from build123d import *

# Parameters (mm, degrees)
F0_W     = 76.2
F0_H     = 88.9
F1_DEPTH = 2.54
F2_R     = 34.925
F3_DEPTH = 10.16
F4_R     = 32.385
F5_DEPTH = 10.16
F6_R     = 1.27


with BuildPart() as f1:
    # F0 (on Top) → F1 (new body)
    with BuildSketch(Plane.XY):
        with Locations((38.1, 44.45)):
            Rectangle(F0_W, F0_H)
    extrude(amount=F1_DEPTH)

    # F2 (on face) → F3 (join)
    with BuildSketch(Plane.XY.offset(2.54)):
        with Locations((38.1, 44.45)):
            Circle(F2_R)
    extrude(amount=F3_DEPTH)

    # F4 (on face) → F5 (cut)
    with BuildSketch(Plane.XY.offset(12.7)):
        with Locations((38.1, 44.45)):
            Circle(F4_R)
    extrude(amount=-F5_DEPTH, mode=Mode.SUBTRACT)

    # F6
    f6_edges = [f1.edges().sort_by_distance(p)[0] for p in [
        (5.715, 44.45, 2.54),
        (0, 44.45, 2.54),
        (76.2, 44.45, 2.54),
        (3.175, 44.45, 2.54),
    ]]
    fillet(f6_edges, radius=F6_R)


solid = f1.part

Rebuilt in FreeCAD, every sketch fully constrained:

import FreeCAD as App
import Part
import Sketcher

V = App.Vector
Q = App.Units.Quantity


def edges_at(feature, points):
    """Names of the edges that pass closest to the given points."""
    edges = feature.Shape.Edges
    near = lambda p: min(range(len(edges)), key=lambda i: edges[i].distToShape(Part.Vertex(*p))[0])
    return sorted({f"Edge{near(p) + 1}" for p in points})

doc = App.newDocument("Part")
params = doc.addObject("Spreadsheet::Sheet", "Params")
for row, (alias, value) in enumerate([
    ("sketch1_width", "3 in"),
    ("sketch1_height", "3.5 in"),
    ("pad1_length", "0.1 in"),
    ("sketch2_diameter", "2.75 in"),
    ("pad2_length", "0.4 in"),
    ("sketch3_diameter", "2.55 in"),
    ("pocket1_length", "0.4 in"),
    ("fillet_radius", "0.05 in"),
], start=1):
    params.set(f"A{row}", alias)
    params.set(f"B{row}", "=" + value)
    params.setAlias(f"B{row}", alias)

body = doc.addObject("PartDesign::Body", "Body")

sketch1 = doc.addObject("Sketcher::SketchObject", "Sketch")
body.addObject(sketch1)
sketch1.AttachmentSupport = (doc.XY_Plane, [""])
sketch1.MapMode = "FlatFace"
sketch1.addGeometry(Part.LineSegment(V(0, 89, 0), V(0, 0, 0)), False)
sketch1.addGeometry(Part.LineSegment(V(0, 0, 0), V(76, 0, 0)), False)
sketch1.addGeometry(Part.LineSegment(V(76, 0, 0), V(76, 89, 0)), False)
sketch1.addGeometry(Part.LineSegment(V(76, 89, 0), V(0, 89, 0)), False)
sketch1.addConstraint(Sketcher.Constraint("Coincident", 0, 2, 1, 1))
sketch1.addConstraint(Sketcher.Constraint("Coincident", 1, 2, 2, 1))
sketch1.addConstraint(Sketcher.Constraint("Coincident", 2, 2, 3, 1))
sketch1.addConstraint(Sketcher.Constraint("Coincident", 3, 2, 0, 1))
sketch1.addConstraint(Sketcher.Constraint("Vertical", 0))
sketch1.addConstraint(Sketcher.Constraint("Horizontal", 1))
sketch1.addConstraint(Sketcher.Constraint("Vertical", 2))
sketch1.addConstraint(Sketcher.Constraint("Horizontal", 3))
sketch1.addConstraint(Sketcher.Constraint("Coincident", 0, 2, -1, 1))
sketch1.addConstraint(Sketcher.Constraint("DistanceX", 1, 1, 1, 2, Q("3 in")))
sketch1.addConstraint(Sketcher.Constraint("DistanceY", 0, 2, 0, 1, Q("3.5 in")))
sketch1.setExpression("Constraints[9]", "Params.sketch1_width")
sketch1.setExpression("Constraints[10]", "Params.sketch1_height")
pad1 = doc.addObject("PartDesign::Pad", "Pad")
body.addObject(pad1)
pad1.Profile = sketch1
pad1.setExpression("Length", "Params.pad1_length")

sketch2 = doc.addObject("Sketcher::SketchObject", "Sketch001")
body.addObject(sketch2)
sketch2.AttachmentSupport = (doc.XY_Plane, [""])
sketch2.MapMode = "FlatFace"
sketch2.AttachmentOffset = App.Placement(V(0, 0, 0.1 * 25.4), App.Rotation())
sketch2.addGeometry(Part.Circle(V(38, 44, 0), V(0, 0, 1), 35), False)
sketch2.addConstraint(Sketcher.Constraint("Diameter", 0, Q("2.75 in")))
sketch2.addConstraint(Sketcher.Constraint("DistanceX", -1, 1, 0, 3, Q("1.5 in")))
sketch2.addConstraint(Sketcher.Constraint("DistanceY", -1, 1, 0, 3, Q("1.75 in")))
sketch2.setExpression("Constraints[0]", "Params.sketch2_diameter")
pad2 = doc.addObject("PartDesign::Pad", "Pad001")
body.addObject(pad2)
pad2.Profile = sketch2
pad2.setExpression("Length", "Params.pad2_length")

sketch3 = doc.addObject("Sketcher::SketchObject", "Sketch002")
body.addObject(sketch3)
sketch3.AttachmentSupport = (doc.XY_Plane, [""])
sketch3.MapMode = "FlatFace"
sketch3.AttachmentOffset = App.Placement(V(0, 0, 0.5 * 25.4), App.Rotation())
sketch3.addGeometry(Part.Circle(V(38, 44, 0), V(0, 0, 1), 32), False)
sketch3.addConstraint(Sketcher.Constraint("Diameter", 0, Q("2.55 in")))
sketch3.addConstraint(Sketcher.Constraint("DistanceX", -1, 1, 0, 3, Q("1.5 in")))
sketch3.addConstraint(Sketcher.Constraint("DistanceY", -1, 1, 0, 3, Q("1.75 in")))
sketch3.setExpression("Constraints[0]", "Params.sketch3_diameter")
pocket1 = doc.addObject("PartDesign::Pocket", "Pocket")
body.addObject(pocket1)
pocket1.Profile = sketch3
pocket1.setExpression("Length", "Params.pocket1_length")
doc.recompute()

fillet = doc.addObject("PartDesign::Fillet", "Fillet")
body.addObject(fillet)
fillet.Base = (pocket1, edges_at(pocket1, [
    (5.715, 44.45, 2.54),
    (0, 44.45, 2.54),
    (76.2, 44.45, 2.54),
    (3.175, 44.45, 2.54),
]))
fillet.setExpression("Radius", "Params.fillet_radius")

doc.recompute()
